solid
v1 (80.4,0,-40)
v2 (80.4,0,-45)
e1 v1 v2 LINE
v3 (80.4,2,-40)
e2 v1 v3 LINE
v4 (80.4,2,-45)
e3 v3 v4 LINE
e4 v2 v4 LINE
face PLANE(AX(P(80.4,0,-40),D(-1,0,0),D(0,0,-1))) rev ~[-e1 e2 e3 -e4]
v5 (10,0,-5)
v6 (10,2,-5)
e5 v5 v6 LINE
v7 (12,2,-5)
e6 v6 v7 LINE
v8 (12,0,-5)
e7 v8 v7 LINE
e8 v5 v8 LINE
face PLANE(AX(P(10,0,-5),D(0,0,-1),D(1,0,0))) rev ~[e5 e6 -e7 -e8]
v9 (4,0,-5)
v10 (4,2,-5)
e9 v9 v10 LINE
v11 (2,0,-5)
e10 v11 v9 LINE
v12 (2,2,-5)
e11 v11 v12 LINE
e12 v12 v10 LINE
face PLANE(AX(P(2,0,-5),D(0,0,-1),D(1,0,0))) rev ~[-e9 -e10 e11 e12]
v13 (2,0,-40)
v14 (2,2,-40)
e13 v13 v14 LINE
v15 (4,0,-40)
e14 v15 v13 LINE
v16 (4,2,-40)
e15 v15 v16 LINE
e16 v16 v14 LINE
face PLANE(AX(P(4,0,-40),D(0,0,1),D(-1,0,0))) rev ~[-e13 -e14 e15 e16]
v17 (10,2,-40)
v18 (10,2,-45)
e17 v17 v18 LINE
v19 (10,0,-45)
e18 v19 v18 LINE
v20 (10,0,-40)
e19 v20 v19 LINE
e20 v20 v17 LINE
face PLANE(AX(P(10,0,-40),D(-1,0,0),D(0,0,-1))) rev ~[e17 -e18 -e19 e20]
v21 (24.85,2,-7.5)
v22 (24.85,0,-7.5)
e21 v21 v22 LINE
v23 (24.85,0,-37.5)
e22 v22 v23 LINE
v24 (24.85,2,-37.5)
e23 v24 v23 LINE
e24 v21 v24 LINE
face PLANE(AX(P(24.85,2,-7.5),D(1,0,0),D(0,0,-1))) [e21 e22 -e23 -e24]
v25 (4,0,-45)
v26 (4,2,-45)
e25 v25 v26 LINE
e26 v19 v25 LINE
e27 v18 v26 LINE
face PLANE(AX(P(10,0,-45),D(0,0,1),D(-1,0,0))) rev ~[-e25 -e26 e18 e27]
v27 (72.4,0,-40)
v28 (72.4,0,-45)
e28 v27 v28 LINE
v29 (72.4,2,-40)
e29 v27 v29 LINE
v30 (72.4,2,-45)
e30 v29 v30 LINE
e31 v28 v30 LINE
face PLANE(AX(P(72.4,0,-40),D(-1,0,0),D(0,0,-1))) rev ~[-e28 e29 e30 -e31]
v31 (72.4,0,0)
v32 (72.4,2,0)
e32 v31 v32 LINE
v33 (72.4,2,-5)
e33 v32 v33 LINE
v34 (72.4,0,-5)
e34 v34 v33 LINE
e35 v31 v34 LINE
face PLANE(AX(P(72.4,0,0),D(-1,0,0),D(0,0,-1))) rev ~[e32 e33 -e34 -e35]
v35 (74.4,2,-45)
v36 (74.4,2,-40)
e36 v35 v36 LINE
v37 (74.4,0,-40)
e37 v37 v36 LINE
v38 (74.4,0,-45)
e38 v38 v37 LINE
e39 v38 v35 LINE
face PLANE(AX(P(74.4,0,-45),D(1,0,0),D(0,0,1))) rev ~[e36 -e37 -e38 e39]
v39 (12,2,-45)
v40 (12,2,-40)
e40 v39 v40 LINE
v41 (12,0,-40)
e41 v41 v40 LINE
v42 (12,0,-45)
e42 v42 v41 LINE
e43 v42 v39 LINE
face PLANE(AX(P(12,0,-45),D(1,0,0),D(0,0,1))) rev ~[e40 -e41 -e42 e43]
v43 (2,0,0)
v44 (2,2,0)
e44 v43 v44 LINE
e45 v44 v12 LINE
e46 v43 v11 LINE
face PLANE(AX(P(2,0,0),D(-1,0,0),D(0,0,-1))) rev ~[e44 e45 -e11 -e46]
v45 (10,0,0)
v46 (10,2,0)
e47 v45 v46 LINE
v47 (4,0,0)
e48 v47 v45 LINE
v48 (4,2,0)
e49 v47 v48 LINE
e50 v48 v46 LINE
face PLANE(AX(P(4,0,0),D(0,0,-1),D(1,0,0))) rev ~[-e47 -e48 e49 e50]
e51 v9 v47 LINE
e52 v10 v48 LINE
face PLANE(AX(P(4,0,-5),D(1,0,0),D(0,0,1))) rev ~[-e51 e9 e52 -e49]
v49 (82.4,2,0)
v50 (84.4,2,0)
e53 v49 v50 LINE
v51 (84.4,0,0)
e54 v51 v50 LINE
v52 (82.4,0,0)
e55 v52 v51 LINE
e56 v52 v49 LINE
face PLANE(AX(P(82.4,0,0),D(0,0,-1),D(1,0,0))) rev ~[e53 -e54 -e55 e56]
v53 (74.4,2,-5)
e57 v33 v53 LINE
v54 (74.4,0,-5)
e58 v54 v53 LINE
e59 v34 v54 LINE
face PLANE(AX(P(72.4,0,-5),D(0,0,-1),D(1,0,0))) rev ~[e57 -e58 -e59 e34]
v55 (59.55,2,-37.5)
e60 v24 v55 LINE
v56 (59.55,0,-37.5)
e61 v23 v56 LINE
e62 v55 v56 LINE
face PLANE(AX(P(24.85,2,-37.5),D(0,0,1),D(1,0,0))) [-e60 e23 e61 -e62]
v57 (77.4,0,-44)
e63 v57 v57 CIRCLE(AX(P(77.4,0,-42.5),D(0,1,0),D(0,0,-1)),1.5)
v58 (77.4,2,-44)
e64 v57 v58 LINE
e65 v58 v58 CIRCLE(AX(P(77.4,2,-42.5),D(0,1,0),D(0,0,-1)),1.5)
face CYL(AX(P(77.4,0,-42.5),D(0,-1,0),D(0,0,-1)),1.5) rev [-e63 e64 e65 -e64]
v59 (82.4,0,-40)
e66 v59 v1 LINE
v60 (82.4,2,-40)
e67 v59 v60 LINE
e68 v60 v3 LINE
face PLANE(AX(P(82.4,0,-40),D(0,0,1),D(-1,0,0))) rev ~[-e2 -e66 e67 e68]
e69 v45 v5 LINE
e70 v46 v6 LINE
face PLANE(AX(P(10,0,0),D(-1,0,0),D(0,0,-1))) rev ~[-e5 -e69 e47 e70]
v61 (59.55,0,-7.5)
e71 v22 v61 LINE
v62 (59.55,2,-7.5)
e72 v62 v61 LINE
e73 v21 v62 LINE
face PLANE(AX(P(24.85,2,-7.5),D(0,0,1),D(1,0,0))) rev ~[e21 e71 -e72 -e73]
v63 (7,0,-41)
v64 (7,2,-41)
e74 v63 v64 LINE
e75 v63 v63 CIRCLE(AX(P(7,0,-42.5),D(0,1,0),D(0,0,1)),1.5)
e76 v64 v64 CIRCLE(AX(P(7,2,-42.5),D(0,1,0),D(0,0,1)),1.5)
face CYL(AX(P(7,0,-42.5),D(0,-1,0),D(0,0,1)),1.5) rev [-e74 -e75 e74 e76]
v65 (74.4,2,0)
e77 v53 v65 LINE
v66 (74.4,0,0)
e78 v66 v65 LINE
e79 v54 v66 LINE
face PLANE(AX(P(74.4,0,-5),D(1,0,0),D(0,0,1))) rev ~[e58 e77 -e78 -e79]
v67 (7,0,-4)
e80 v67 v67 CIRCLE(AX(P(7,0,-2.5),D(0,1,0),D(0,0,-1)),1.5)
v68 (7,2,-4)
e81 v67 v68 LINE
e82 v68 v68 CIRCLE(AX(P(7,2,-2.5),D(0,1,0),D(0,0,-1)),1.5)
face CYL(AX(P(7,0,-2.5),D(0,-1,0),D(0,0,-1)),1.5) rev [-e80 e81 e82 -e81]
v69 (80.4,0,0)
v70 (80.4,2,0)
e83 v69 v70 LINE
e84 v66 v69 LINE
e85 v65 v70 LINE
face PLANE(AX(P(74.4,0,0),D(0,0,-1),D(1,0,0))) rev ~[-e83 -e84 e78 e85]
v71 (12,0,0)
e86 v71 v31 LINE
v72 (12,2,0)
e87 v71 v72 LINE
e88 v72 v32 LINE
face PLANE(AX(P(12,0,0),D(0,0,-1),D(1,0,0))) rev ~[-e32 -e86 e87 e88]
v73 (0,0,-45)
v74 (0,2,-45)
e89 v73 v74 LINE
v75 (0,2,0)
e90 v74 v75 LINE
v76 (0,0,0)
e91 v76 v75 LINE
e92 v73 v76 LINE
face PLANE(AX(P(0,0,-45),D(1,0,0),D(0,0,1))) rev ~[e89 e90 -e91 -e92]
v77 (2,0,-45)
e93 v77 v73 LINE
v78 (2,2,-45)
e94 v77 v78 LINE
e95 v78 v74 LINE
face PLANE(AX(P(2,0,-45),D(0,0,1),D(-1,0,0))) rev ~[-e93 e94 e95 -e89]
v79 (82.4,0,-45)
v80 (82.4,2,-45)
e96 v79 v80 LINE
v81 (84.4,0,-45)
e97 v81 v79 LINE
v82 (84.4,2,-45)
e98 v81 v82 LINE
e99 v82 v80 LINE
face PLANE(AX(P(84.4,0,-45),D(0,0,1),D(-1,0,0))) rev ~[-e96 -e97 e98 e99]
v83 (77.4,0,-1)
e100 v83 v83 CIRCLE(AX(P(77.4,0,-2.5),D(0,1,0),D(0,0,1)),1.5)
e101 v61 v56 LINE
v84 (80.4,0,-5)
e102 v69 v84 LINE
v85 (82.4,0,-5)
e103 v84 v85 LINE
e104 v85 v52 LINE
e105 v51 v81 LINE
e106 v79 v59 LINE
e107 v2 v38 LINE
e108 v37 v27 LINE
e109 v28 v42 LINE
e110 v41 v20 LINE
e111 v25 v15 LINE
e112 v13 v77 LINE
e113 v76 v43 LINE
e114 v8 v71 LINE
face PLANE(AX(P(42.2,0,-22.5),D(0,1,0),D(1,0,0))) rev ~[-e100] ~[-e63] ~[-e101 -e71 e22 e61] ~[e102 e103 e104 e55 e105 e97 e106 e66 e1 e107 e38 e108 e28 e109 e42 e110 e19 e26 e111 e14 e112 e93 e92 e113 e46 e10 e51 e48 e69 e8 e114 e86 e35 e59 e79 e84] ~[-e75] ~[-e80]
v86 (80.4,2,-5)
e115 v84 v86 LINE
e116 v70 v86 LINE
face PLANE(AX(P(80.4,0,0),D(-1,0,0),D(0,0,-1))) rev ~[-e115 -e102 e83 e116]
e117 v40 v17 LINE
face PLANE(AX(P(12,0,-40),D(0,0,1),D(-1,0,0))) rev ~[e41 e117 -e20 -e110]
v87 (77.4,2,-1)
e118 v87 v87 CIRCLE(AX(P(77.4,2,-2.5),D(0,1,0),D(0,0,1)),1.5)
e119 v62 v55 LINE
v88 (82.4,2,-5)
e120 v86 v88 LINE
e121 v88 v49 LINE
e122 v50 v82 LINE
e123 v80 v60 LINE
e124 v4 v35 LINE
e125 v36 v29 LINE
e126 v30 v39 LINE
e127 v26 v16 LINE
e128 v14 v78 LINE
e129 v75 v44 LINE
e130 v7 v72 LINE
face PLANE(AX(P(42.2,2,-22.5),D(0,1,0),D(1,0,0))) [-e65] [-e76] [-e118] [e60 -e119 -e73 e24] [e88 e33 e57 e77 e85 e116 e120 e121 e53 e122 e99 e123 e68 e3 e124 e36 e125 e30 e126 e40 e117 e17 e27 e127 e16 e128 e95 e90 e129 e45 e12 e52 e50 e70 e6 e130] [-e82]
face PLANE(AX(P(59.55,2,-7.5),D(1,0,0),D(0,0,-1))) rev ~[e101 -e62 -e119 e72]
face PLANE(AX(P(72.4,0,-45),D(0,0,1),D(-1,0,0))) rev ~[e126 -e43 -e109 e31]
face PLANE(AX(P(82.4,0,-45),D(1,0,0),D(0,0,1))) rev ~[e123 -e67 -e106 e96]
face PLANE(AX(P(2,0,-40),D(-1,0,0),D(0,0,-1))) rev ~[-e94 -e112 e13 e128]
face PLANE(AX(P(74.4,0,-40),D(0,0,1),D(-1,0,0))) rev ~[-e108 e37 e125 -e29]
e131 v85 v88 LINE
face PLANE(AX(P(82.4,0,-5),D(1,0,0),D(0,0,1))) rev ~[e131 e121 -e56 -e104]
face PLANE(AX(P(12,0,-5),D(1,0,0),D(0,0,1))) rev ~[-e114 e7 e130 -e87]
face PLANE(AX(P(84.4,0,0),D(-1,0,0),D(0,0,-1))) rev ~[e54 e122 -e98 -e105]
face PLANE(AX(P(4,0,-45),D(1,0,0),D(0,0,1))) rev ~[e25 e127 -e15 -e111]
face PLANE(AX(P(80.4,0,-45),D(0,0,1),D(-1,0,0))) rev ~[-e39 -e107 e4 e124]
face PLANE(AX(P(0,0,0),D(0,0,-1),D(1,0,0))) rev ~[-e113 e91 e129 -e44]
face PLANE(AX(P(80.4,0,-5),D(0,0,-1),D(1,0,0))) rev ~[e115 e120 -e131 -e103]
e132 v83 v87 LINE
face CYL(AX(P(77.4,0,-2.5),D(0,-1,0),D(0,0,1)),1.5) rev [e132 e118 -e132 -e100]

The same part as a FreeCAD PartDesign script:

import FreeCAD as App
import Part
import Sketcher
Q = App.Units.Quantity


def add_polygon(sketch, points):
    """Adds a closed chain of lines whose ends are joined by coincident constraints."""
    first, n = sketch.GeometryCount, len(points)
    for a, b in zip(points, points[1:] + points[:1]):
        sketch.addGeometry(Part.LineSegment(App.Vector(*a, 0), App.Vector(*b, 0)), False)
    for i in range(n):
        sketch.addConstraint(Sketcher.Constraint("Coincident", first + i, 2, first + (i + 1) % n, 1))

doc = App.newDocument("Part")
body = doc.addObject("PartDesign::Body", "Body")

sketch1 = body.newObject("Sketcher::SketchObject", "Sketch")
sketch1.AttachmentSupport = (doc.getObject("XZ_Plane"), [""])
sketch1.MapMode = "FlatFace"
add_polygon(sketch1, [(0, 0), (2, 0), (2, -5), (4, -5), (4, 0), (10, 0), (10, -5), (12, -5), (12, 0), (72.4, 0), (72.4, -5), (74.4, -5), (74.4, 0), (80.4, 0), (80.4, -5), (82.4, -5), (82.4, 0), (84.4, 0), (84.4, -45), (82.4, -45), (82.4, -40), (80.4, -40), (80.4, -45), (74.4, -45), (74.4, -40), (72.4, -40), (72.4, -45), (12, -45), (12, -40), (10, -40), (10, -45), (4, -45), (4, -40), (2, -40), (2, -45), (0, -45)])
sketch1.addGeometry(Part.Circle(App.Vector(7, -2.5, 0), App.Vector(0, 0, 1), 1.5), False)
sketch1.addGeometry(Part.Circle(App.Vector(77.4, -2.5, 0), App.Vector(0, 0, 1), 1.5), False)
sketch1.addGeometry(Part.Circle(App.Vector(7, -42.5, 0), App.Vector(0, 0, 1), 1.5), False)
sketch1.addGeometry(Part.Circle(App.Vector(77.4, -42.5, 0), App.Vector(0, 0, 1), 1.5), False)
sketch1.addConstraint(Sketcher.Constraint("Horizontal", 0))
sketch1.addConstraint(Sketcher.Constraint("Vertical", 1))
sketch1.addConstraint(Sketcher.Constraint("Horizontal", 2))
sketch1.addConstraint(Sketcher.Constraint("Vertical", 3))
sketch1.addConstraint(Sketcher.Constraint("Horizontal", 4))
sketch1.addConstraint(Sketcher.Constraint("Vertical", 5))
sketch1.addConstraint(Sketcher.Constraint("Horizontal", 6))
sketch1.addConstraint(Sketcher.Constraint("Vertical", 7))
sketch1.addConstraint(Sketcher.Constraint("Horizontal", 8))
sketch1.addConstraint(Sketcher.Constraint("Vertical", 9))
sketch1.addConstraint(Sketcher.Constraint("Horizontal", 10))
sketch1.addConstraint(Sketcher.Constraint("Vertical", 11))
sketch1.addConstraint(Sketcher.Constraint("Horizontal", 12))
sketch1.addConstraint(Sketcher.Constraint("Vertical", 13))
sketch1.addConstraint(Sketcher.Constraint("Horizontal", 14))
sketch1.addConstraint(Sketcher.Constraint("Vertical", 15))
sketch1.addConstraint(Sketcher.Constraint("Horizontal", 16))
sketch1.addConstraint(Sketcher.Constraint("Vertical", 17))
sketch1.addConstraint(Sketcher.Constraint("Horizontal", 18))
sketch1.addConstraint(Sketcher.Constraint("Vertical", 19))
sketch1.addConstraint(Sketcher.Constraint("Horizontal", 20))
sketch1.addConstraint(Sketcher.Constraint("Vertical", 21))
sketch1.addConstraint(Sketcher.Constraint("Horizontal", 22))
sketch1.addConstraint(Sketcher.Constraint("Vertical", 23))
sketch1.addConstraint(Sketcher.Constraint("Horizontal", 24))
sketch1.addConstraint(Sketcher.Constraint("Vertical", 25))
sketch1.addConstraint(Sketcher.Constraint("Horizontal", 26))
sketch1.addConstraint(Sketcher.Constraint("Vertical", 27))
sketch1.addConstraint(Sketcher.Constraint("Horizontal", 28))
sketch1.addConstraint(Sketcher.Constraint("Vertical", 29))
sketch1.addConstraint(Sketcher.Constraint("Horizontal", 30))
sketch1.addConstraint(Sketcher.Constraint("Vertical", 31))
sketch1.addConstraint(Sketcher.Constraint("Horizontal", 32))
sketch1.addConstraint(Sketcher.Constraint("Vertical", 33))
sketch1.addConstraint(Sketcher.Constraint("Horizontal", 34))
sketch1.addConstraint(Sketcher.Constraint("Vertical", 35))
sketch1.addConstraint(Sketcher.Constraint("Coincident", 35, 2, -1, 1))
sketch1.addConstraint(Sketcher.Constraint("Equal", 36, 37))
sketch1.addConstraint(Sketcher.Constraint("Equal", 37, 38))
sketch1.addConstraint(Sketcher.Constraint("Equal", 38, 39))
sketch1.addConstraint(Sketcher.Constraint("PointOnObject", 3, 2, -1))
sketch1.addConstraint(Sketcher.Constraint("PointOnObject", 7, 2, -1))
sketch1.addConstraint(Sketcher.Constraint("PointOnObject", 11, 2, -1))
sketch1.addConstraint(Sketcher.Constraint("PointOnObject", 15, 2, -1))
sketch1.addConstraint(Sketcher.Constraint("Horizontal", 36, 3, 37, 3))
sketch1.addConstraint(Sketcher.Constraint("Horizontal", 38, 3, 39, 3))
sketch1.addConstraint(Sketcher.Constraint("Horizontal", 2, 2, 5, 2))
sketch1.addConstraint(Sketcher.Constraint("Horizontal", 6, 2, 9, 2))
sketch1.addConstraint(Sketcher.Constraint("Horizontal", 10, 2, 13, 2))
sketch1.addConstraint(Sketcher.Constraint("Horizontal", 18, 2, 21, 2))
sketch1.addConstraint(Sketcher.Constraint("Horizontal", 20, 2, 23, 2))
sketch1.addConstraint(Sketcher.Constraint("Horizontal", 22, 2, 25, 2))
sketch1.addConstraint(Sketcher.Constraint("Horizontal", 24, 2, 27, 2))
sketch1.addConstraint(Sketcher.Constraint("Horizontal", 26, 2, 29, 2))
sketch1.addConstraint(Sketcher.Constraint("Horizontal", 28, 2, 31, 2))
sketch1.addConstraint(Sketcher.Constraint("Horizontal", 30, 2, 33, 2))
sketch1.addConstraint(Sketcher.Constraint("Vertical", 36, 3, 38, 3))
sketch1.addConstraint(Sketcher.Constraint("Vertical", 37, 3, 39, 3))
sketch1.addConstraint(Sketcher.Constraint("Vertical", 15, 2, 18, 2))
sketch1.addConstraint(Sketcher.Constraint("Vertical", 13, 2, 20, 2))
sketch1.addConstraint(Sketcher.Constraint("Vertical", 11, 2, 22, 2))
sketch1.addConstraint(Sketcher.Constraint("Vertical", 9, 2, 24, 2))
sketch1.addConstraint(Sketcher.Constraint("Vertical", 7, 2, 26, 2))
sketch1.addConstraint(Sketcher.Constraint("Vertical", 5, 2, 28, 2))
sketch1.addConstraint(Sketcher.Constraint("Vertical", 3, 2, 30, 2))
sketch1.addConstraint(Sketcher.Constraint("Vertical", 1, 2, 32, 2))
sketch1.addConstraint(Sketcher.Constraint("Equal", 0, 2))
sketch1.addConstraint(Sketcher.Constraint("Equal", 2, 6))
sketch1.addConstraint(Sketcher.Constraint("Equal", 6, 10))
sketch1.addConstraint(Sketcher.Constraint("Equal", 4, 12))
sketch1.addConstraint(Sketcher.Constraint("Equal", 10, 14))
sketch1.addConstraint(Sketcher.Constraint("Equal", 14, 16))
sketch1.addConstraint(Sketcher.Constraint("Equal", 15, 19))
sketch1.addConstraint(Sketcher.Constraint("Diameter", 36, Q("3 mm")))
sketch1.addConstraint(Sketcher.Constraint("DistanceX", 0, 1, 0, 2, Q("2 mm")))
sketch1.addConstraint(Sketcher.Constraint("DistanceX", 4, 1, 4, 2, Q("6 mm")))
sketch1.addConstraint(Sketcher.Constraint("DistanceY", 1, 2, 1, 1, Q("5 mm")))
sketch1.addConstraint(Sketcher.Constraint("DistanceY", 17, 2, 17, 1, Q("45 mm")))
sketch1.addConstraint(Sketcher.Constraint("DistanceX", 8, 1, 8, 2, Q("60.4 mm")))
sketch1.addConstraint(Sketcher.Constraint("DistanceX", -1, 1, 36, 3, Q("7 mm")))
sketch1.addConstraint(Sketcher.Constraint("DistanceY", 38, 3, 36, 3, Q("40 mm")))
sketch1.addConstraint(Sketcher.Constraint("DistanceX", 8, 2, 37, 3, Q("5 mm")))
sketch1.addConstraint(Sketcher.Constraint("DistanceY", 36, 3, -1, 1, Q("2.5 mm")))
pad1 = body.newObject("PartDesign::Pad", "Pad")
pad1.Profile = sketch1
pad1.Length = 2
pad1.Reversed = True

sketch2 = body.newObject("Sketcher::SketchObject", "Sketch001")
sketch2.AttachmentSupport = (doc.getObject("XZ_Plane"), [""])
sketch2.MapMode = "FlatFace"
sketch2.AttachmentOffset = App.Placement(App.Vector(0, 0, -2), App.Rotation())
add_polygon(sketch2, [(24.85, -37.5), (24.85, -7.5), (59.55, -7.5), (59.55, -37.5)])
sketch2.addConstraint(Sketcher.Constraint("Vertical", 0))
sketch2.addConstraint(Sketcher.Constraint("Horizontal", 1))
sketch2.addConstraint(Sketcher.Constraint("Vertical", 2))
sketch2.addConstraint(Sketcher.Constraint("Horizontal", 3))
sketch2.addConstraint(Sketcher.Constraint("DistanceY", 0, 1, 0, 2, Q("30 mm")))
sketch2.addConstraint(Sketcher.Constraint("DistanceX", 1, 1, 1, 2, Q("34.7 mm")))
sketch2.addConstraint(Sketcher.Constraint("DistanceY", 0, 2, -1, 1, Q("7.5 mm")))
sketch2.addConstraint(Sketcher.Constraint("DistanceX", -1, 1, 0, 2, Q("24.85 mm")))
pocket1 = body.newObject("PartDesign::Pocket", "Pocket")
pocket1.Profile = sketch2
pocket1.Length = 10
pocket1.Reversed = True

doc.recompute()
